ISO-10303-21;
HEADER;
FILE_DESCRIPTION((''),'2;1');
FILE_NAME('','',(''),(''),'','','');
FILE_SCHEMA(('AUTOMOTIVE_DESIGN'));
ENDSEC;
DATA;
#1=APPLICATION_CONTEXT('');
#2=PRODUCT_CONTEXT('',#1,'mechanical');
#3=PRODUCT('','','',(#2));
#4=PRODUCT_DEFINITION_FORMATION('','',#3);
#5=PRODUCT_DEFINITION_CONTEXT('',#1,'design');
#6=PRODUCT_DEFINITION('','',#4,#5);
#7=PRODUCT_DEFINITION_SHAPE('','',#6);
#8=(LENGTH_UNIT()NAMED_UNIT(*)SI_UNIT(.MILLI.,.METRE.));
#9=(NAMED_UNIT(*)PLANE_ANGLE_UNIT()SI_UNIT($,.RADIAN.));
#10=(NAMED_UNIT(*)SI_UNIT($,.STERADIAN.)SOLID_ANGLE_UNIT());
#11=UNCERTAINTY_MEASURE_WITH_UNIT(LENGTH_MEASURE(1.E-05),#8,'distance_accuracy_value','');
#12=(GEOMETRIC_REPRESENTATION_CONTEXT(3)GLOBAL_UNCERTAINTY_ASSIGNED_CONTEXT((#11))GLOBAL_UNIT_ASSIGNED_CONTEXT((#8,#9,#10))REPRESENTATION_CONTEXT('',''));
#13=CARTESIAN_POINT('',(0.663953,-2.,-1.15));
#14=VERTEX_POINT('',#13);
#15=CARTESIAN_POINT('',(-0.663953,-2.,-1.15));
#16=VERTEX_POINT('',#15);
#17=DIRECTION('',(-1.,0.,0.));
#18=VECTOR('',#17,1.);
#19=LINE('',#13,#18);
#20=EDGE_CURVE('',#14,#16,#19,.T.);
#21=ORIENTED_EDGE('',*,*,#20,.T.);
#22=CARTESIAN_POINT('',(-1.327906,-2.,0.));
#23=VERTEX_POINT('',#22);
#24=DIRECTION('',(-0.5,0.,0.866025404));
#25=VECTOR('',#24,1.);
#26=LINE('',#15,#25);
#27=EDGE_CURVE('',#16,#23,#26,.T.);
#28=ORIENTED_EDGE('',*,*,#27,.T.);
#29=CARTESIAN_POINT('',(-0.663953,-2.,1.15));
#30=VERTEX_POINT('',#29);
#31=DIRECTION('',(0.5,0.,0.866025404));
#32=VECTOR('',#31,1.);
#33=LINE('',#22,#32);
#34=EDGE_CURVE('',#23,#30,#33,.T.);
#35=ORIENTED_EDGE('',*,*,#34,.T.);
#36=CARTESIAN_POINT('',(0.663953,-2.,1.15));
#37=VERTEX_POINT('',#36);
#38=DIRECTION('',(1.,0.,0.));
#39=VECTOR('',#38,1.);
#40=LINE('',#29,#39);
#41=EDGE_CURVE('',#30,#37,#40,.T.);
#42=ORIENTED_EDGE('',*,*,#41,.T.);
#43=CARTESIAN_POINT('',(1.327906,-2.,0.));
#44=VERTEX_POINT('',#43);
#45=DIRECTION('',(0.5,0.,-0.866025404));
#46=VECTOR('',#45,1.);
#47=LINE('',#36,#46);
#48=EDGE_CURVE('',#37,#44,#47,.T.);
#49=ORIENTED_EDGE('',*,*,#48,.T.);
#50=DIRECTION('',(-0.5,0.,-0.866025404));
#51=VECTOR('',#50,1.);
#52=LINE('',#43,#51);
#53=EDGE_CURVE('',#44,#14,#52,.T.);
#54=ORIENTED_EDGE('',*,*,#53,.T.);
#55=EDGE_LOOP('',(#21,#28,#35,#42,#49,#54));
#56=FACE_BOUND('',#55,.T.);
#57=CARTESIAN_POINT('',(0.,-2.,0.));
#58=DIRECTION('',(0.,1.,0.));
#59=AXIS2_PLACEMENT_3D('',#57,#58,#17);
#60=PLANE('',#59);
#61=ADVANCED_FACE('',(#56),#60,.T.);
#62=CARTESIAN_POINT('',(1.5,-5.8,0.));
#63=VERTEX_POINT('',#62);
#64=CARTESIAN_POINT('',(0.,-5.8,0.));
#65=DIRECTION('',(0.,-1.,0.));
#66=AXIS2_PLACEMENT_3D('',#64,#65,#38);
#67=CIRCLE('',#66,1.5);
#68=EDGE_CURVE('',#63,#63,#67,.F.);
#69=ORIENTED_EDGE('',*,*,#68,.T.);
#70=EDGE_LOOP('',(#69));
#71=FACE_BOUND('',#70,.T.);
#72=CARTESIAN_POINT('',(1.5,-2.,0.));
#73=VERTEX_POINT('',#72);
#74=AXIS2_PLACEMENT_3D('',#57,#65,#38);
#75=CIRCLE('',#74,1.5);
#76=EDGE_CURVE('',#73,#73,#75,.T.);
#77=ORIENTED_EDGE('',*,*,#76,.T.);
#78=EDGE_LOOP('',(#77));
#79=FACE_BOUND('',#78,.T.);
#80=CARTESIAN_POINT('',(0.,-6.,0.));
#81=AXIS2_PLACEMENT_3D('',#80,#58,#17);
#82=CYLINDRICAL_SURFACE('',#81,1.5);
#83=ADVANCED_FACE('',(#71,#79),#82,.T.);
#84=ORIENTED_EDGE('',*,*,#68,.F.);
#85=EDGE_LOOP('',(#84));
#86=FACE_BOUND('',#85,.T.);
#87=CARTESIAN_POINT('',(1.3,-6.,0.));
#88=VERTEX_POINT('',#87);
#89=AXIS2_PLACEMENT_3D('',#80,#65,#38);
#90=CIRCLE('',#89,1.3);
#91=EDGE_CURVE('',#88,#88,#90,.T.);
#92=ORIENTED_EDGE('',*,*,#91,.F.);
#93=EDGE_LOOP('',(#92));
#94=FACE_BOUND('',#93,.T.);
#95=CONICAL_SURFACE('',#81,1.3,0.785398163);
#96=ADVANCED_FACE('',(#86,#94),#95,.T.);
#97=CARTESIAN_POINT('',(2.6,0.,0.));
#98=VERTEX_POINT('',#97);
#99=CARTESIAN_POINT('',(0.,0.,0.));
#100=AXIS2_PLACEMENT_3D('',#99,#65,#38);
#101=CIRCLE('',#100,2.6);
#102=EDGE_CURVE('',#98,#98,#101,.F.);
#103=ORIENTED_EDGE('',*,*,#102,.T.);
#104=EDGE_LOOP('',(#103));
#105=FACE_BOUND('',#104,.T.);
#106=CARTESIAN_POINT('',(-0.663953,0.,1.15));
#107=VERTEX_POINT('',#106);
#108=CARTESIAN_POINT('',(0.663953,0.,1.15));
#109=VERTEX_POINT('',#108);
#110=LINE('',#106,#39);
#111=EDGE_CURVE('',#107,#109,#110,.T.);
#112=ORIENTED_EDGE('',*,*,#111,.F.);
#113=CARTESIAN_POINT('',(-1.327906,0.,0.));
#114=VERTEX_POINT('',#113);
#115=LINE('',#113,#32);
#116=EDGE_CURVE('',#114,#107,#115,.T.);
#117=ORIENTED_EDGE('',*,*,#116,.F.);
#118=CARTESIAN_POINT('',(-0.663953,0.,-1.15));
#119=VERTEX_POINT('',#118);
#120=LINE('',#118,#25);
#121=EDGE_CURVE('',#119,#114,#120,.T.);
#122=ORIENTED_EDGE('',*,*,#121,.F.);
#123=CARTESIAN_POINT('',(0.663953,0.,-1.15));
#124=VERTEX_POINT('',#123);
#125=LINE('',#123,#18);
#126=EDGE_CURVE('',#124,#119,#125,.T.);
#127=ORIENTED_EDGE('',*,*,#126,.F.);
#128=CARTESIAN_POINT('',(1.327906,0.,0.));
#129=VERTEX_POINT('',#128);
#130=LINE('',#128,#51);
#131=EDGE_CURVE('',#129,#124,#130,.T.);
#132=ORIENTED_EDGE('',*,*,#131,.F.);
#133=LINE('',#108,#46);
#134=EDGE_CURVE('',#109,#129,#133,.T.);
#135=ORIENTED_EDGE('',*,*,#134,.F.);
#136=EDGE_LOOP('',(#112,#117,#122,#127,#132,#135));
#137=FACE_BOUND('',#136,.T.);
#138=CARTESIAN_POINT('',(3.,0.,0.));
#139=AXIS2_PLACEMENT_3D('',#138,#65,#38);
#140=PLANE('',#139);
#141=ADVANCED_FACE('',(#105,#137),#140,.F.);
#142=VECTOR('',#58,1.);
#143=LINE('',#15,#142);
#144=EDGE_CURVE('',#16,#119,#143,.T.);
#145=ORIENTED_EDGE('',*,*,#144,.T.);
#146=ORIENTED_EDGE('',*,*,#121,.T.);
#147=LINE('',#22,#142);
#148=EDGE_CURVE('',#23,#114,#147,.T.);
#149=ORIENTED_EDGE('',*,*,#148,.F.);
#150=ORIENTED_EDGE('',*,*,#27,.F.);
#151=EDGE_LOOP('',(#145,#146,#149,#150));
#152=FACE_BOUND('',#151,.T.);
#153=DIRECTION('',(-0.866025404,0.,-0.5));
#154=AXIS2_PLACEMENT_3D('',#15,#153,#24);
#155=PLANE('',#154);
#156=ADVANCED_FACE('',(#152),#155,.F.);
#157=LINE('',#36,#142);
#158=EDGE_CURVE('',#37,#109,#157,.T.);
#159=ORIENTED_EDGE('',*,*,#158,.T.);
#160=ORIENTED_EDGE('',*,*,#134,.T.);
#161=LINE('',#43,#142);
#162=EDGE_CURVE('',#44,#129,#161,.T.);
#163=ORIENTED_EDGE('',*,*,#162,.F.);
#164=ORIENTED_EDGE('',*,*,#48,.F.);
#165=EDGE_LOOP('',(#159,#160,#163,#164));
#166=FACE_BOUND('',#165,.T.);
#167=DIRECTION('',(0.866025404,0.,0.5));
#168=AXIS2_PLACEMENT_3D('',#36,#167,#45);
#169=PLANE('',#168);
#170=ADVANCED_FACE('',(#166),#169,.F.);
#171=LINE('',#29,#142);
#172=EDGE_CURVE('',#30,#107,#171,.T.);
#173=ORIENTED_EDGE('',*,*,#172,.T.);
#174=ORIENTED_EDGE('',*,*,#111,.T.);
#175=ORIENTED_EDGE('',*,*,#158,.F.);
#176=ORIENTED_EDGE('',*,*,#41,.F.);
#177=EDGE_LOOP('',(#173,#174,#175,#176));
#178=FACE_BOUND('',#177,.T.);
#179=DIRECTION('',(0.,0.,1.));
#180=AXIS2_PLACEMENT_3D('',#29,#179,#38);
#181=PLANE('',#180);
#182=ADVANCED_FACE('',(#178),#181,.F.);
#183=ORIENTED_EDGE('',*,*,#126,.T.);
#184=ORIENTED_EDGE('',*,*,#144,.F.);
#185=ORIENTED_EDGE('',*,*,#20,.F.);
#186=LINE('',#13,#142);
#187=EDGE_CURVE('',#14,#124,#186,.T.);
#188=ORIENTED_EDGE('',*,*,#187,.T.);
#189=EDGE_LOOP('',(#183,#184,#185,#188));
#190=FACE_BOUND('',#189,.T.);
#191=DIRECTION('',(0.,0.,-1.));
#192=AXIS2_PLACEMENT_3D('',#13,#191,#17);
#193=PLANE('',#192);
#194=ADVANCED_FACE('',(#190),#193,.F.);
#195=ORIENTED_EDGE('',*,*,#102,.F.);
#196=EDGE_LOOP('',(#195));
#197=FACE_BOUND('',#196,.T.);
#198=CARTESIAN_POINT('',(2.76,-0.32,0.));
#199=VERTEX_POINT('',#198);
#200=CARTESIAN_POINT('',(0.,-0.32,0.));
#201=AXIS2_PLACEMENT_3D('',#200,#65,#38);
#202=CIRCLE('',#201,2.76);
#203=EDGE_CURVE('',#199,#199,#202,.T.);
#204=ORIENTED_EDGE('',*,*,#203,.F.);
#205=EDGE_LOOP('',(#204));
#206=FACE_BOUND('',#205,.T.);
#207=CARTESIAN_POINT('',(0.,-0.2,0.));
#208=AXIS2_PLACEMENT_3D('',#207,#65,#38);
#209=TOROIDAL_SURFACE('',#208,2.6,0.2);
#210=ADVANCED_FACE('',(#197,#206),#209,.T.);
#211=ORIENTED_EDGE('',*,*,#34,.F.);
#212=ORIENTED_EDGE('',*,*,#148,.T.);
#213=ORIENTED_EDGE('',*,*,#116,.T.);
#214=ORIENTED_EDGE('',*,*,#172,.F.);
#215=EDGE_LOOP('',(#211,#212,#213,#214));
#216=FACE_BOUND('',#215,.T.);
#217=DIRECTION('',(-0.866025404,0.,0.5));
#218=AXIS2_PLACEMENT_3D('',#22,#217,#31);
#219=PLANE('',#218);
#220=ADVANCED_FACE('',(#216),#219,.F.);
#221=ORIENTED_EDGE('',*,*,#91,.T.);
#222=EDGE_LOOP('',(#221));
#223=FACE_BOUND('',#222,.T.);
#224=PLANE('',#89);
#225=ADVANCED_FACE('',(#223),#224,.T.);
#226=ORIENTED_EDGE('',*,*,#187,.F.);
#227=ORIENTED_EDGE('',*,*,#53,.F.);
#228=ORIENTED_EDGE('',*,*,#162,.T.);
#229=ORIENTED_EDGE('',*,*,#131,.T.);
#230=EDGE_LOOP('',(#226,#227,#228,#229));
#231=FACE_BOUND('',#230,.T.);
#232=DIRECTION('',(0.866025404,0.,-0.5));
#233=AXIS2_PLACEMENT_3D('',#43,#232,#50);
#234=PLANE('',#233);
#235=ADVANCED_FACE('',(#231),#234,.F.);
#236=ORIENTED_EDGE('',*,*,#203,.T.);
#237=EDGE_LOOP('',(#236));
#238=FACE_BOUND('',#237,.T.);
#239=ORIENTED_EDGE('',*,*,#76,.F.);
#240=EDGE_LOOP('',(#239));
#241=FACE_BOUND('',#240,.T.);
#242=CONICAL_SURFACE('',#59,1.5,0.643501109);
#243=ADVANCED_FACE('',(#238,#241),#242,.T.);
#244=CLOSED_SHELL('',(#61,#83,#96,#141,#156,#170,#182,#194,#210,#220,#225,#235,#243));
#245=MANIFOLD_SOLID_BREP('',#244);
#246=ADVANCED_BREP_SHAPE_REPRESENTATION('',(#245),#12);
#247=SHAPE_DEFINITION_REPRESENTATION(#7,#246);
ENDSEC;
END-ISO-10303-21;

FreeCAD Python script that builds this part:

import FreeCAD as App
import Part
import Sketcher
Q = App.Units.Quantity


def edges_at(feature, points):
    """Names of the edges that pass closest to the given points."""
    edges = feature.Shape.Edges
    near = lambda p: min(range(len(edges)), key=lambda i: edges[i].distToShape(Part.Vertex(*p))[0])
    return sorted({f"Edge{near(p) + 1}" for p in points})


def add_polygon(sketch, points):
    """Adds a closed chain of lines whose ends are joined by coincident constraints."""
    first, n = sketch.GeometryCount, len(points)
    for a, b in zip(points, points[1:] + points[:1]):
        sketch.addGeometry(Part.LineSegment(App.Vector(*a, 0), App.Vector(*b, 0)), False)
    for i in range(n):
        sketch.addConstraint(Sketcher.Constraint("Coincident", first + i, 2, first + (i + 1) % n, 1))

doc = App.newDocument("Part")
params = doc.addObject("Spreadsheet::Sheet", "Params")
for row, (alias, value) in enumerate([
    ("sketch1_width", "3 mm"),
    ("sketch1_height", "2 mm"),
    ("sketch1_width2", "1.5 mm"),
    ("revolution_angle", "360 deg"),
    ("sketch2_diameter", "3 mm"),
    ("pad1_length", "4 mm"),
    ("pocket1_length", "2 mm"),
    ("chamfer_size", "0.2 mm"),
    ("fillet_radius", "0.2 mm"),
], start=1):
    params.set(f"A{row}", alias)
    params.set(f"B{row}", "=" + value)
    params.setAlias(f"B{row}", alias)

body = doc.addObject("PartDesign::Body", "Body")

sketch1 = doc.addObject("Sketcher::SketchObject", "Sketch")
body.addObject(sketch1)
sketch1.AttachmentSupport = (doc.XY_Plane, [""])
sketch1.MapMode = "FlatFace"
add_polygon(sketch1, [(0, 0), (0, -2), (1.5, -2), (3, 0)])
sketch1.addConstraint(Sketcher.Constraint("Vertical", 0))
sketch1.addConstraint(Sketcher.Constraint("Horizontal", 1))
sketch1.addConstraint(Sketcher.Constraint("Horizontal", 3))
sketch1.addConstraint(Sketcher.Constraint("Coincident", 3, 2, -1, 1))
sketch1.addConstraint(Sketcher.Constraint("DistanceX", 3, 2, 3, 1, 3.0))
sketch1.addConstraint(Sketcher.Constraint("DistanceY", 0, 2, 0, 1, 2.0))
sketch1.addConstraint(Sketcher.Constraint("DistanceX", 1, 1, 1, 2, 1.5))
sketch1.setExpression("Constraints[8]", "Params.sketch1_width")
sketch1.setExpression("Constraints[9]", "Params.sketch1_height")
sketch1.setExpression("Constraints[10]", "Params.sketch1_width2")
revolution = doc.addObject("PartDesign::Revolution", "Revolution")
body.addObject(revolution)
revolution.Profile = sketch1
revolution.ReferenceAxis = (sketch1, ["V_Axis"])
revolution.setExpression("Angle", "Params.revolution_angle")

sketch2 = doc.addObject("Sketcher::SketchObject", "Sketch001")
body.addObject(sketch2)
sketch2.AttachmentSupport = (doc.XZ_Plane, [""])
sketch2.MapMode = "FlatFace"
sketch2.AttachmentOffset = App.Placement(App.Vector(0, 0, 2), App.Rotation())
sketch2.addGeometry(Part.Circle(App.Vector(0, 0, 0), App.Vector(0, 0, 1), 1.5), False)
sketch2.addConstraint(Sketcher.Constraint("Coincident", 0, 3, -1, 1))
sketch2.addConstraint(Sketcher.Constraint("Diameter", 0, 3.0))
sketch2.setExpression("Constraints[1]", "Params.sketch2_diameter")
pad1 = doc.addObject("PartDesign::Pad", "Pad")
body.addObject(pad1)
pad1.Profile = sketch2
pad1.setExpression("Length", "Params.pad1_length")

sketch3 = doc.addObject("Sketcher::SketchObject", "Sketch002")
body.addObject(sketch3)
sketch3.AttachmentSupport = (doc.XZ_Plane, [""])
sketch3.MapMode = "FlatFace"
add_polygon(sketch3, [(-1.327906, 0), (-0.663953, 1.15), (0.663953, 1.15), (1.327906, 0), (0.663953, -1.15), (-0.663953, -1.15)])
sketch3.addConstraint(Sketcher.Constraint("Horizontal", 1))
sketch3.addConstraint(Sketcher.Constraint("Horizontal", 4))
sketch3.addConstraint(Sketcher.Constraint("Symmetric", 0, 2, 3, 2, -1, 1))
sketch3.addConstraint(Sketcher.Constraint("Symmetric", 2, 2, 5, 2, -1, 1))
sketch3.addConstraint(Sketcher.Constraint("PointOnObject", 2, 2, -1))
sketch3.addConstraint(Sketcher.Constraint("Parallel", 2, 5))
sketch3.addConstraint(Sketcher.Constraint("Vertical", 1, 2, 3, 2))
sketch3.addConstraint(Sketcher.Constraint("Angle", 0, Q("60 deg")))
sketch3.addConstraint(Sketcher.Constraint("DistanceY", 3, 2, 1, 2, 2.3))
sketch3.addConstraint(Sketcher.Constraint("DistanceX", 1, 1, 1, 2, 1.327906))
pocket1 = doc.addObject("PartDesign::Pocket", "Pocket")
body.addObject(pocket1)
pocket1.Profile = sketch3
pocket1.setExpression("Length", "Params.pocket1_length")
pocket1.Reversed = True
doc.recompute()

chamfer = doc.addObject("PartDesign::Chamfer", "Chamfer")
body.addObject(chamfer)
chamfer.Base = (pocket1, edges_at(pocket1, [(-1.5, -6, 0)]))
chamfer.setExpression("Size", "Params.chamfer_size")
doc.recompute()

fillet = doc.addObject("PartDesign::Fillet", "Fillet")
body.addObject(fillet)
fillet.Base = (chamfer, edges_at(chamfer, [(-3, 0, 0)]))
fillet.setExpression("Radius", "Params.fillet_radius")

doc.recompute()
